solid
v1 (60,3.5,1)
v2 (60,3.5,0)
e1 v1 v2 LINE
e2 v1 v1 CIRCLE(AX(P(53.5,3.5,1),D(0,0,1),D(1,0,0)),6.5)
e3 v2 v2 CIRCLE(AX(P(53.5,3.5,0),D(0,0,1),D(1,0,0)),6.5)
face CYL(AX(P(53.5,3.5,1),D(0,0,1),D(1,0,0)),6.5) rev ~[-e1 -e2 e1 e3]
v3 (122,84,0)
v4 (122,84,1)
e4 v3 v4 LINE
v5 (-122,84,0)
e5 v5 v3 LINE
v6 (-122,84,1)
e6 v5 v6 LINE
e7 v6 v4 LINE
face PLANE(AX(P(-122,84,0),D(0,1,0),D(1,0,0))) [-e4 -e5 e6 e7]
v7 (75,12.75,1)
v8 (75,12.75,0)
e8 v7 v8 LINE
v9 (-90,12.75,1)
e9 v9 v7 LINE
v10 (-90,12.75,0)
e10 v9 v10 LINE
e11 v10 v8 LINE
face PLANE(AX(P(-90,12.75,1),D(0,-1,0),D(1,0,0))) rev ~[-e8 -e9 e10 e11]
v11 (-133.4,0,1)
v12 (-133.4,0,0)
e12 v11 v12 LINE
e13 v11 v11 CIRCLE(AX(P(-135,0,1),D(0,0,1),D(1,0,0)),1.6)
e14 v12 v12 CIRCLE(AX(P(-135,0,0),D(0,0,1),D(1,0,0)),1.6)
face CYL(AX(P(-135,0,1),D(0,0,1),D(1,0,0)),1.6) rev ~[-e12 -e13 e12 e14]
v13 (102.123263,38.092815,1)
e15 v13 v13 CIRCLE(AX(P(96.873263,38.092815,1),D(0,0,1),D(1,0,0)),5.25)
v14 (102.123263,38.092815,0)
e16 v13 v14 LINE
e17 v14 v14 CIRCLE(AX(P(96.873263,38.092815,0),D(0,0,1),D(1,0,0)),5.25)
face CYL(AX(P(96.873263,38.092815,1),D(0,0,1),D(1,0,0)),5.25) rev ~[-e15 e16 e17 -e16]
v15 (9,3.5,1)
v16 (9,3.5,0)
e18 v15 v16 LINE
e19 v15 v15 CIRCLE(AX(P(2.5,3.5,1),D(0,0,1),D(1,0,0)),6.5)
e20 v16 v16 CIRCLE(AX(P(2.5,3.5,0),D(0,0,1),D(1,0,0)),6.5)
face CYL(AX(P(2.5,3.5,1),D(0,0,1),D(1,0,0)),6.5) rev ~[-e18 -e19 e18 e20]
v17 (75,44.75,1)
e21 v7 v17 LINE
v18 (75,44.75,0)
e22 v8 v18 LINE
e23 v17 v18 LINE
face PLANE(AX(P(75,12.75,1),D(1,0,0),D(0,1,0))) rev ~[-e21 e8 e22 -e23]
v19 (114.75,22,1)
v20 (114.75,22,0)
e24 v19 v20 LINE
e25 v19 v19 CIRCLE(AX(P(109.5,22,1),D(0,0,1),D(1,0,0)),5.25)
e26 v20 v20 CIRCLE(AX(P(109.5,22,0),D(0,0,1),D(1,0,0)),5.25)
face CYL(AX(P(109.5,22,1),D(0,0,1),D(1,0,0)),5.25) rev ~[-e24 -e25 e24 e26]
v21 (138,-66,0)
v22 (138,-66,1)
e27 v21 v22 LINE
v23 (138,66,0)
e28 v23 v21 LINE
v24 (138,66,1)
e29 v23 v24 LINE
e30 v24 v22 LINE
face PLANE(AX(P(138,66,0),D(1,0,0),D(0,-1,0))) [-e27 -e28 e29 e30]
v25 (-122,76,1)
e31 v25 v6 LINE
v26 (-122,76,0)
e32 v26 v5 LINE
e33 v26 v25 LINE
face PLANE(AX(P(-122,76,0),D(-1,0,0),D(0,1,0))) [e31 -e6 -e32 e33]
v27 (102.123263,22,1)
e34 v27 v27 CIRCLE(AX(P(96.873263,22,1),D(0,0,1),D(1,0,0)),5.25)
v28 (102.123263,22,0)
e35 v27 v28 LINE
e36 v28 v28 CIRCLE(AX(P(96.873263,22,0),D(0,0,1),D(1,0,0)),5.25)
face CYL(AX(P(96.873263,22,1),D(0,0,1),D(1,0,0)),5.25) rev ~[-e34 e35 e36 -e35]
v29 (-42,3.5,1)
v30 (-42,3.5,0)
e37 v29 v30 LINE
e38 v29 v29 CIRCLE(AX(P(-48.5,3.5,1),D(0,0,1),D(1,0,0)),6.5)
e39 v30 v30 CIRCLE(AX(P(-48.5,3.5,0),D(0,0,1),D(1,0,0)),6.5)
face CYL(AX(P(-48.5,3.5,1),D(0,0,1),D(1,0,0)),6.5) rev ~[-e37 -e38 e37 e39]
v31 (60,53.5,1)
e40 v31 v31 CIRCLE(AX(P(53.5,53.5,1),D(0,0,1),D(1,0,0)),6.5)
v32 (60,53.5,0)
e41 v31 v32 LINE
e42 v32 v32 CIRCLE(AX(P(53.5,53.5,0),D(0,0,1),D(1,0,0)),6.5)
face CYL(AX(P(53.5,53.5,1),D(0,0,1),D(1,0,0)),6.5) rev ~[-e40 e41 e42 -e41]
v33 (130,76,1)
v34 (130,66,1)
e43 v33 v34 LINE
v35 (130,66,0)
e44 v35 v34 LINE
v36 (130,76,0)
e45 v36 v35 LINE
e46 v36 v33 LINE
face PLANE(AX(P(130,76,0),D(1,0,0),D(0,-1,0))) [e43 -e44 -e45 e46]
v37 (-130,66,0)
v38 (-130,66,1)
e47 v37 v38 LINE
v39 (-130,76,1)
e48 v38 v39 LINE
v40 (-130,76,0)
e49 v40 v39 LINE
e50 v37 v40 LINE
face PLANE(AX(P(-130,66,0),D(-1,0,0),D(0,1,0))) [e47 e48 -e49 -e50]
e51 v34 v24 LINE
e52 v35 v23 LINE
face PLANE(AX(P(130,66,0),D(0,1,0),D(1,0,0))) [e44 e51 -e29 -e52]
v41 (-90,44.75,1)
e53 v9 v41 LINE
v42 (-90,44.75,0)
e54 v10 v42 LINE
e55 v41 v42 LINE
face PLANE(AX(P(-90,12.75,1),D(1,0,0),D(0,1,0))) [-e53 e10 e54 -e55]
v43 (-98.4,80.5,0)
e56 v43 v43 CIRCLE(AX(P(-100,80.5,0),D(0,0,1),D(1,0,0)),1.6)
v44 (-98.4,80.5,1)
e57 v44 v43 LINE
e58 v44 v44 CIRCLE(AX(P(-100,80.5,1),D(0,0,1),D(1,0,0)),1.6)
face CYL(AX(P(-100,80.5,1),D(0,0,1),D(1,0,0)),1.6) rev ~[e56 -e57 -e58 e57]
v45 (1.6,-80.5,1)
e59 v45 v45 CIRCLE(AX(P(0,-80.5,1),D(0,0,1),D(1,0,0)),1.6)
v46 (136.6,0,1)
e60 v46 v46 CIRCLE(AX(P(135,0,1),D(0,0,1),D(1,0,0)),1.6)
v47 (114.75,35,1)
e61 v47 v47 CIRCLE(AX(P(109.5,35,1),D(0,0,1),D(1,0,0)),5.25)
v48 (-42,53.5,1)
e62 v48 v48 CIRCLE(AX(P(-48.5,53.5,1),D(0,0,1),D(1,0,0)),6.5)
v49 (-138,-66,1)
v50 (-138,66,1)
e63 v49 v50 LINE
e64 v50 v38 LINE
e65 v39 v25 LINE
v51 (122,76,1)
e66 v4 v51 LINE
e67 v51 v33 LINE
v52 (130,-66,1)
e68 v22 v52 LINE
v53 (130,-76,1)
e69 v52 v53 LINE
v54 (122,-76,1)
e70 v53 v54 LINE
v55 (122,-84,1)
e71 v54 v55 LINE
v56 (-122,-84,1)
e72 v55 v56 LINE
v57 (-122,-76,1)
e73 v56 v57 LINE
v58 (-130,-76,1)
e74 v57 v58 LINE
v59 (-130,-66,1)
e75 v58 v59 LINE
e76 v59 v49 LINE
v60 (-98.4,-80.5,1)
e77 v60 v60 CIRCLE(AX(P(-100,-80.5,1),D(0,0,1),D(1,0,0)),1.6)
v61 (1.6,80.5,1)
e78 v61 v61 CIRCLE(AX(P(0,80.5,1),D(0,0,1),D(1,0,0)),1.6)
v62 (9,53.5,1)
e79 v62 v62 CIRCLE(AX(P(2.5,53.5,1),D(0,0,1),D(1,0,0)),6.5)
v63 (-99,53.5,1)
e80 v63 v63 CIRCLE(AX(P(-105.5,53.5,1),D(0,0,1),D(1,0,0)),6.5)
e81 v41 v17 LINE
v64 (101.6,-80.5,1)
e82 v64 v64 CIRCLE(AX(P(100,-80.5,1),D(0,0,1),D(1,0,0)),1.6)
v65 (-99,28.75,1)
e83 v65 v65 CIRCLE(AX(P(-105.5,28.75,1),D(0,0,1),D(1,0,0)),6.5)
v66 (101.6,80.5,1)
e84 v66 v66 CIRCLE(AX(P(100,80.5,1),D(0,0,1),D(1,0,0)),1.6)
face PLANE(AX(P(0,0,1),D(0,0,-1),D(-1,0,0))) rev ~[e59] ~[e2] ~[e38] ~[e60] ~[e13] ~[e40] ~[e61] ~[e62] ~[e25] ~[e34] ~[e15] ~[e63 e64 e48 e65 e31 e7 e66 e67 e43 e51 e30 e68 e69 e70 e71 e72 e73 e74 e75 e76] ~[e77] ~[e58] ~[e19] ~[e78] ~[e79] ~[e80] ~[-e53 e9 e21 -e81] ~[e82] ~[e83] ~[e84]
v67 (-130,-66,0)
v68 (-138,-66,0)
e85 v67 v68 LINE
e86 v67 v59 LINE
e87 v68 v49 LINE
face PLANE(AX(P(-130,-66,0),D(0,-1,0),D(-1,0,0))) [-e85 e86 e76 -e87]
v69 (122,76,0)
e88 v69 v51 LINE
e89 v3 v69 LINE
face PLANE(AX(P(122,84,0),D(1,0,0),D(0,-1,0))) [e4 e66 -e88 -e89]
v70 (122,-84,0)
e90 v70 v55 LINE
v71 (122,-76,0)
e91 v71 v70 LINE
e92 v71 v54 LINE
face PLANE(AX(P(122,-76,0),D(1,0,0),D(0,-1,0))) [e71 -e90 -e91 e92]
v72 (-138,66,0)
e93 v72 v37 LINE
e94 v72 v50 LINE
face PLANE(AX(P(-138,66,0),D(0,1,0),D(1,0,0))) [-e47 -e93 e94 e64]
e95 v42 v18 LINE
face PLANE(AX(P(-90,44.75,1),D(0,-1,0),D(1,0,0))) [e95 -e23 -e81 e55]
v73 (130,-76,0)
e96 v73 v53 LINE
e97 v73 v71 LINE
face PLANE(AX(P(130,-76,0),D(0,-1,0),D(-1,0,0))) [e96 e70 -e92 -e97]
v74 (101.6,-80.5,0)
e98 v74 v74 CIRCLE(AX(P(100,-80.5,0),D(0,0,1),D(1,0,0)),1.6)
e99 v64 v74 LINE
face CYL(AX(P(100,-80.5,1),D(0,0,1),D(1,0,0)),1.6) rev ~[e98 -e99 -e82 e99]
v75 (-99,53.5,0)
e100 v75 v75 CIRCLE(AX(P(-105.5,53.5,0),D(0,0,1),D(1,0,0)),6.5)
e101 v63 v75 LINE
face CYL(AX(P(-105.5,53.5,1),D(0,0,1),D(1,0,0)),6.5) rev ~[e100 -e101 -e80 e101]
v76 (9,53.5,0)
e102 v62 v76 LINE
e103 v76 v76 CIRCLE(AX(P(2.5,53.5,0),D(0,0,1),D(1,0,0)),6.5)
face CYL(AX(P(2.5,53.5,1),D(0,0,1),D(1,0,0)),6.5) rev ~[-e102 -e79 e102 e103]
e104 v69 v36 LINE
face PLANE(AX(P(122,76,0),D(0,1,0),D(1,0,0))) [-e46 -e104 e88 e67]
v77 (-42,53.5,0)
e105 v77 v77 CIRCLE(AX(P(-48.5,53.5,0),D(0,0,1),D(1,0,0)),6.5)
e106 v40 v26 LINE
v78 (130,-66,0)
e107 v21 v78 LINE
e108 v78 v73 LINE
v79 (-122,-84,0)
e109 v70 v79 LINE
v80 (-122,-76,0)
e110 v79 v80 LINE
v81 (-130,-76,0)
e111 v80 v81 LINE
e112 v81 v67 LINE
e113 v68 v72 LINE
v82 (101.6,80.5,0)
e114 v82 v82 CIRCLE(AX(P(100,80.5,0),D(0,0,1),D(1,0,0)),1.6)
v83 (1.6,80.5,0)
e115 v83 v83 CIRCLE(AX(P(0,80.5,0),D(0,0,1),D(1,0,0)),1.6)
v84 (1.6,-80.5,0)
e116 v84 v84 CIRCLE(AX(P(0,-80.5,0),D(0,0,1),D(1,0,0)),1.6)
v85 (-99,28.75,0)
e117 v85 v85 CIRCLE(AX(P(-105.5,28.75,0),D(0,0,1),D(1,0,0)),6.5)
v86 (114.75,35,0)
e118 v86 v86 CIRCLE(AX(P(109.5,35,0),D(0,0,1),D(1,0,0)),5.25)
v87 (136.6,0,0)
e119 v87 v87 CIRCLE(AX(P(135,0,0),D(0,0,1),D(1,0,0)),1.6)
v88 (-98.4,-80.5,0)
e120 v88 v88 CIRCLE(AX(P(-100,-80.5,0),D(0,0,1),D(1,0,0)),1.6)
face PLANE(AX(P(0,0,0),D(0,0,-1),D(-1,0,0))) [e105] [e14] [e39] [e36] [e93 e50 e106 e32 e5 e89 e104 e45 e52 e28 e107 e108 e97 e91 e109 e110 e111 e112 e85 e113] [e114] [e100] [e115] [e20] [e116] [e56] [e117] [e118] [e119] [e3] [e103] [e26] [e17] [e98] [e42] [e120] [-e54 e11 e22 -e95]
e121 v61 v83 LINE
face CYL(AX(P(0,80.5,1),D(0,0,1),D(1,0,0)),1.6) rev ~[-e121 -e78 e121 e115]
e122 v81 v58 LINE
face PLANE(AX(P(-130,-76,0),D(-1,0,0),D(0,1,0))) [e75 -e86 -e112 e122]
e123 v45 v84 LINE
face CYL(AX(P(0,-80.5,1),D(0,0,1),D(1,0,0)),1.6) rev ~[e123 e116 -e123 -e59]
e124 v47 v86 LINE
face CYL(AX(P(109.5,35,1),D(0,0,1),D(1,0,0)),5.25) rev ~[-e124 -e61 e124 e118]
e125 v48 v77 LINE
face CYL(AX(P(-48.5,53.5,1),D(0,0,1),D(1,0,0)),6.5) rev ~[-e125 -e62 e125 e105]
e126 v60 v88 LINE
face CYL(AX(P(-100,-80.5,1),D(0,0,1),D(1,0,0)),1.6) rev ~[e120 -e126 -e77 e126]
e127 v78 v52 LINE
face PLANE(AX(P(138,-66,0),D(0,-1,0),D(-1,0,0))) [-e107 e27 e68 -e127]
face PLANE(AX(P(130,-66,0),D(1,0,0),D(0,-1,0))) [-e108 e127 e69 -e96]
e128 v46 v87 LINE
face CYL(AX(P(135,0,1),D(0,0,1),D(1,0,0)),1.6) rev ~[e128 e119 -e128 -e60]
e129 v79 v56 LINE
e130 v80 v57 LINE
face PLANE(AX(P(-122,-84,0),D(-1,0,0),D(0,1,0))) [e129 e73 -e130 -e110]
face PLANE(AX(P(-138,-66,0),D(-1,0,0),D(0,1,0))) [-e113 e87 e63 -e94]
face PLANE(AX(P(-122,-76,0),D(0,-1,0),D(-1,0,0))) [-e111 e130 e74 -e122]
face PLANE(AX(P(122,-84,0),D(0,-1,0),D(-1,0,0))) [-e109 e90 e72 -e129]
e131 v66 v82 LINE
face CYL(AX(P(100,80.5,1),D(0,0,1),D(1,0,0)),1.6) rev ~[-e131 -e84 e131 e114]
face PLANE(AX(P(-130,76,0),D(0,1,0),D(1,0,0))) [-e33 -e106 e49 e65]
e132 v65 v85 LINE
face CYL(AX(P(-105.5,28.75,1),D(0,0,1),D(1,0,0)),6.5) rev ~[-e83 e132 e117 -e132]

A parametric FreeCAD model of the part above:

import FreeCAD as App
import Part
import Sketcher
Q = App.Units.Quantity

doc = App.newDocument("Part")
body = doc.addObject("PartDesign::Body", "Body")

sketch1 = body.newObject("Sketcher::SketchObject", "Sketch")
sketch1.AttachmentSupport = (doc.getObject("XY_Plane"), [""])
sketch1.MapMode = "FlatFace"
sketch1.addGeometry([
    Part.LineSegment(App.Vector(122, 84, 0), App.Vector(-122, 84, 0)),
    Part.LineSegment(App.Vector(-122, 84, 0), App.Vector(-122, 76, 0)),
    Part.LineSegment(App.Vector(-122, 76, 0), App.Vector(-130, 76, 0)),
    Part.LineSegment(App.Vector(-130, 76, 0), App.Vector(-130, 66, 0)),
    Part.LineSegment(App.Vector(-130, 66, 0), App.Vector(-138, 66, 0)),
    Part.LineSegment(App.Vector(-138, 66, 0), App.Vector(-138, -66, 0)),
    Part.LineSegment(App.Vector(-138, -66, 0), App.Vector(-130, -66, 0)),
    Part.LineSegment(App.Vector(-130, -66, 0), App.Vector(-130, -76, 0)),
    Part.LineSegment(App.Vector(-130, -76, 0), App.Vector(-122, -76, 0)),
    Part.LineSegment(App.Vector(-122, -76, 0), App.Vector(-122, -84, 0)),
    Part.LineSegment(App.Vector(-122, -84, 0), App.Vector(122, -84, 0)),
    Part.LineSegment(App.Vector(122, -84, 0), App.Vector(122, -76, 0)),
    Part.LineSegment(App.Vector(122, -76, 0), App.Vector(130, -76, 0)),
    Part.LineSegment(App.Vector(130, -76, 0), App.Vector(130, -66, 0)),
    Part.LineSegment(App.Vector(130, -66, 0), App.Vector(138, -66, 0)),
    Part.LineSegment(App.Vector(138, -66, 0), App.Vector(138, 66, 0)),
    Part.LineSegment(App.Vector(138, 66, 0), App.Vector(130, 66, 0)),
    Part.LineSegment(App.Vector(130, 66, 0), App.Vector(130, 76, 0)),
    Part.LineSegment(App.Vector(130, 76, 0), App.Vector(122, 76, 0)),
    Part.LineSegment(App.Vector(122, 76, 0), App.Vector(122, 84, 0)),
], False)
sketch1.addConstraint([
    Sketcher.Constraint("Coincident", 0, 2, 1, 1),
    Sketcher.Constraint("Coincident", 1, 2, 2, 1),
    Sketcher.Constraint("Coincident", 2, 2, 3, 1),
    Sketcher.Constraint("Coincident", 3, 2, 4, 1),
    Sketcher.Constraint("Coincident", 4, 2, 5, 1),
    Sketcher.Constraint("Coincident", 5, 2, 6, 1),
    Sketcher.Constraint("Coincident", 6, 2, 7, 1),
    Sketcher.Constraint("Coincident", 7, 2, 8, 1),
    Sketcher.Constraint("Coincident", 8, 2, 9, 1),
    Sketcher.Constraint("Coincident", 9, 2, 10, 1),
    Sketcher.Constraint("Coincident", 10, 2, 11, 1),
    Sketcher.Constraint("Coincident", 11, 2, 12, 1),
    Sketcher.Constraint("Coincident", 12, 2, 13, 1),
    Sketcher.Constraint("Coincident", 13, 2, 14, 1),
    Sketcher.Constraint("Coincident", 14, 2, 15, 1),
    Sketcher.Constraint("Coincident", 15, 2, 16, 1),
    Sketcher.Constraint("Coincident", 16, 2, 17, 1),
    Sketcher.Constraint("Coincident", 17, 2, 18, 1),
    Sketcher.Constraint("Coincident", 18, 2, 19, 1),
    Sketcher.Constraint("Coincident", 19, 2, 0, 1),
    Sketcher.Constraint("Horizontal", 0),
    Sketcher.Constraint("Vertical", 1),
    Sketcher.Constraint("Horizontal", 2),
    Sketcher.Constraint("Vertical", 3),
    Sketcher.Constraint("Horizontal", 4),
    Sketcher.Constraint("Vertical", 5),
    Sketcher.Constraint("Horizontal", 6),
    Sketcher.Constraint("Vertical", 7),
    Sketcher.Constraint("Horizontal", 8),
    Sketcher.Constraint("Vertical", 9),
    Sketcher.Constraint("Horizontal", 10),
    Sketcher.Constraint("Vertical", 11),
    Sketcher.Constraint("Horizontal", 12),
    Sketcher.Constraint("Vertical", 13),
    Sketcher.Constraint("Horizontal", 14),
    Sketcher.Constraint("Vertical", 15),
    Sketcher.Constraint("Horizontal", 16),
    Sketcher.Constraint("Vertical", 17),
    Sketcher.Constraint("Horizontal", 18),
    Sketcher.Constraint("Vertical", 19),
    Sketcher.Constraint("Symmetric", 0, 2, 10, 2, -1, 1),
    Sketcher.Constraint("Symmetric", 2, 2, 12, 2, -1, 1),
    Sketcher.Constraint("Symmetric", 4, 2, 14, 2, -1, 1),
    Sketcher.Constraint("Symmetric", 6, 2, 16, 2, -1, 1),
    Sketcher.Constraint("Symmetric", 8, 2, 18, 2, -1, 1),
    Sketcher.Constraint("Symmetric", 8, 2, 11, 2, -2),
    Sketcher.Constraint("Symmetric", 6, 2, 13, 2, -2),
    Sketcher.Constraint("Equal", 2, 4),
    Sketcher.Constraint("Equal", 18, 1),
    Sketcher.Constraint("DistanceX", 0, 2, 0, 1, Q("244 mm")),
    Sketcher.Constraint("DistanceX", 2, 2, 2, 1, Q("8 mm")),
    Sketcher.Constraint("DistanceY", 3, 2, 3, 1, Q("10 mm")),
    Sketcher.Constraint("DistanceY", 5, 2, 5, 1, Q("132 mm")),
])
pad1 = body.newObject("PartDesign::Pad", "Pad")
pad1.Profile = sketch1
pad1.Length = 1

sketch2 = body.newObject("Sketcher::SketchObject", "Sketch001")
sketch2.AttachmentSupport = (doc.getObject("XY_Plane"), [""])
sketch2.MapMode = "FlatFace"
sketch2.AttachmentOffset = App.Placement(App.Vector(0, 0, 1), App.Rotation())
sketch2.addGeometry([
    Part.LineSegment(App.Vector(-90, 44.75, 0), App.Vector(-90, 12.75, 0)),
    Part.LineSegment(App.Vector(-90, 12.75, 0), App.Vector(75, 12.75, 0)),
    Part.LineSegment(App.Vector(75, 12.75, 0), App.Vector(75, 44.75, 0)),
    Part.LineSegment(App.Vector(75, 44.75, 0), App.Vector(-90, 44.75, 0)),
], False)
sketch2.addConstraint([
    Sketcher.Constraint("Coincident", 0, 2, 1, 1),
    Sketcher.Constraint("Coincident", 1, 2, 2, 1),
    Sketcher.Constraint("Coincident", 2, 2, 3, 1),
    Sketcher.Constraint("Coincident", 3, 2, 0, 1),
    Sketcher.Constraint("Vertical", 0),
    Sketcher.Constraint("Horizontal", 1),
    Sketcher.Constraint("Vertical", 2),
    Sketcher.Constraint("Horizontal", 3),
    Sketcher.Constraint("DistanceX", 1, 1, 1, 2, Q("165 mm")),
    Sketcher.Constraint("DistanceY", 0, 2, 0, 1, Q("32 mm")),
    Sketcher.Constraint("DistanceX", 0, 2, -1, 1, Q("90 mm")),
    Sketcher.Constraint("DistanceY", -1, 1, 0, 2, Q("12.75 mm")),
])
pocket1 = body.newObject("PartDesign::Pocket", "Pocket")
pocket1.Profile = sketch2
pocket1.Length = 1

sketch3 = body.newObject("Sketcher::SketchObject", "Sketch002")
sketch3.AttachmentSupport = (doc.getObject("XY_Plane"), [""])
sketch3.MapMode = "FlatFace"
sketch3.AttachmentOffset = App.Placement(App.Vector(0, 0, 1), App.Rotation())
sketch3.addGeometry([
    Part.Circle(App.Vector(-105.5, 53.5, 0), App.Vector(0, 0, 1), 6.5),
    Part.Circle(App.Vector(-105.5, 28.75, 0), App.Vector(0, 0, 1), 6.5),
    Part.Circle(App.Vector(-48.5, 3.5, 0), App.Vector(0, 0, 1), 6.5),
    Part.Circle(App.Vector(2.5, 3.5, 0), App.Vector(0, 0, 1), 6.5),
    Part.Circle(App.Vector(53.5, 3.5, 0), App.Vector(0, 0, 1), 6.5),
    Part.Circle(App.Vector(53.5, 53.5, 0), App.Vector(0, 0, 1), 6.5),
    Part.Circle(App.Vector(2.5, 53.5, 0), App.Vector(0, 0, 1), 6.5),
    Part.Circle(App.Vector(-48.5, 53.5, 0), App.Vector(0, 0, 1), 6.5),
    Part.Circle(App.Vector(96.873263, 38.092815, 0), App.Vector(0, 0, 1), 5.25),
    Part.Circle(App.Vector(109.5, 35, 0), App.Vector(0, 0, 1), 5.25),
    Part.Circle(App.Vector(109.5, 22, 0), App.Vector(0, 0, 1), 5.25),
    Part.Circle(App.Vector(96.873263, 22, 0), App.Vector(0, 0, 1), 5.25),
], False)
sketch3.addConstraint([
    Sketcher.Constraint("Equal", 0, 1),
    Sketcher.Constraint("Equal", 1, 2),
    Sketcher.Constraint("Equal", 2, 3),
    Sketcher.Constraint("Equal", 3, 4),
    Sketcher.Constraint("Equal", 4, 5),
    Sketcher.Constraint("Equal", 5, 6),
    Sketcher.Constraint("Equal", 6, 7),
    Sketcher.Constraint("Equal", 8, 9),
    Sketcher.Constraint("Equal", 9, 10),
    Sketcher.Constraint("Equal", 10, 11),
    Sketcher.Constraint("Horizontal", 2, 3, 3, 3),
    Sketcher.Constraint("Horizontal", 3, 3, 4, 3),
    Sketcher.Constraint("Horizontal", 0, 3, 5, 3),
    Sketcher.Constraint("Horizontal", 5, 3, 6, 3),
    Sketcher.Constraint("Horizontal", 6, 3, 7, 3),
    Sketcher.Constraint("Horizontal", 10, 3, 11, 3),
    Sketcher.Constraint("Vertical", 0, 3, 1, 3),
    Sketcher.Constraint("Vertical", 4, 3, 5, 3),
    Sketcher.Constraint("Vertical", 3, 3, 6, 3),
    Sketcher.Constraint("Vertical", 2, 3, 7, 3),
    Sketcher.Constraint("Vertical", 9, 3, 10, 3),
    Sketcher.Constraint("Vertical", 8, 3, 11, 3),
    Sketcher.Constraint("Diameter", 0, Q("13 mm")),
    Sketcher.Constraint("Diameter", 8, Q("10.5 mm")),
    Sketcher.Constraint("DistanceY", -1, 1, 9, 3, Q("35 mm")),
    Sketcher.Constraint("DistanceY", -1, 1, 10, 3, Q("22 mm")),
    Sketcher.Constraint("DistanceX", 1, 3, 2, 3, Q("57 mm")),
    Sketcher.Constraint("DistanceY", 2, 3, 0, 3, Q("50 mm")),
    Sketcher.Constraint("DistanceX", 2, 3, 3, 3, Q("51 mm")),
    Sketcher.Constraint("DistanceX", 3, 3, 4, 3, Q("51 mm")),
    Sketcher.Constraint("DistanceX", 5, 3, 9, 3, Q("56 mm")),
    Sketcher.Constraint("DistanceX", 0, 3, -1, 1, Q("105.5 mm")),
    Sketcher.Constraint("DistanceY", -1, 1, 0, 3, Q("53.5 mm")),
    Sketcher.Constraint("DistanceY", -1, 1, 1, 3, Q("28.75 mm")),
    Sketcher.Constraint("DistanceX", -1, 1, 8, 3, Q("96.873263 mm")),
    Sketcher.Constraint("DistanceY", -1, 1, 8, 3, Q("38.092815 mm")),
])
pocket2 = body.newObject("PartDesign::Pocket", "Pocket001")
pocket2.Profile = sketch3
pocket2.Length = 1

sketch4 = body.newObject("Sketcher::SketchObject", "Sketch003")
sketch4.AttachmentSupport = (doc.getObject("XY_Plane"), [""])
sketch4.MapMode = "FlatFace"
sketch4.AttachmentOffset = App.Placement(App.Vector(0, 0, 1), App.Rotation())
sketch4.addGeometry([
    Part.Circle(App.Vector(0, -80.5, 0), App.Vector(0, 0, 1), 1.6),
    Part.Circle(App.Vector(-100, -80.5, 0), App.Vector(0, 0, 1), 1.6),
    Part.Circle(App.Vector(100, -80.5, 0), App.Vector(0, 0, 1), 1.6),
    Part.Circle(App.Vector(-135, 0, 0), App.Vector(0, 0, 1), 1.6),
    Part.Circle(App.Vector(135, 0, 0), App.Vector(0, 0, 1), 1.6),
    Part.Circle(App.Vector(100, 80.5, 0), App.Vector(0, 0, 1), 1.6),
    Part.Circle(App.Vector(-100, 80.5, 0), App.Vector(0, 0, 1), 1.6),
    Part.Circle(App.Vector(0, 80.5, 0), App.Vector(0, 0, 1), 1.6),
], False)
sketch4.addConstraint([
    Sketcher.Constraint("Equal", 0, 1),
    Sketcher.Constraint("Equal", 1, 2),
    Sketcher.Constraint("Equal", 2, 3),
    Sketcher.Constraint("Equal", 3, 4),
    Sketcher.Constraint("Equal", 4, 5),
    Sketcher.Constraint("Equal", 5, 6),
    Sketcher.Constraint("Equal", 6, 7),
    Sketcher.Constraint("Symmetric", 3, 3, 4, 3, -1, 1),
    Sketcher.Constraint("Symmetric", 1, 3, 5, 3, -1, 1),
    Sketcher.Constraint("Symmetric", 2, 3, 6, 3, -1, 1),
    Sketcher.Constraint("Symmetric", 0, 3, 7, 3, -1, 1),
    Sketcher.Constraint("Symmetric", 1, 3, 2, 3, -2),
    Sketcher.Constraint("PointOnObject", 0, 3, -2),
    Sketcher.Constraint("PointOnObject", 3, 3, -1),
    Sketcher.Constraint("Horizontal", 0, 3, 1, 3),
    Sketcher.Constraint("Diameter", 0, Q("3.2 mm")),
    Sketcher.Constraint("DistanceX", 1, 3, -1, 1, Q("100 mm")),
    Sketcher.Constraint("DistanceX", 3, 3, -1, 1, Q("135 mm")),
    Sketcher.Constraint("DistanceY", 2, 3, 5, 3, Q("161 mm")),
])
pocket3 = body.newObject("PartDesign::Pocket", "Pocket002")
pocket3.Profile = sketch4
pocket3.Type = "ThroughAll"

doc.recompute()
